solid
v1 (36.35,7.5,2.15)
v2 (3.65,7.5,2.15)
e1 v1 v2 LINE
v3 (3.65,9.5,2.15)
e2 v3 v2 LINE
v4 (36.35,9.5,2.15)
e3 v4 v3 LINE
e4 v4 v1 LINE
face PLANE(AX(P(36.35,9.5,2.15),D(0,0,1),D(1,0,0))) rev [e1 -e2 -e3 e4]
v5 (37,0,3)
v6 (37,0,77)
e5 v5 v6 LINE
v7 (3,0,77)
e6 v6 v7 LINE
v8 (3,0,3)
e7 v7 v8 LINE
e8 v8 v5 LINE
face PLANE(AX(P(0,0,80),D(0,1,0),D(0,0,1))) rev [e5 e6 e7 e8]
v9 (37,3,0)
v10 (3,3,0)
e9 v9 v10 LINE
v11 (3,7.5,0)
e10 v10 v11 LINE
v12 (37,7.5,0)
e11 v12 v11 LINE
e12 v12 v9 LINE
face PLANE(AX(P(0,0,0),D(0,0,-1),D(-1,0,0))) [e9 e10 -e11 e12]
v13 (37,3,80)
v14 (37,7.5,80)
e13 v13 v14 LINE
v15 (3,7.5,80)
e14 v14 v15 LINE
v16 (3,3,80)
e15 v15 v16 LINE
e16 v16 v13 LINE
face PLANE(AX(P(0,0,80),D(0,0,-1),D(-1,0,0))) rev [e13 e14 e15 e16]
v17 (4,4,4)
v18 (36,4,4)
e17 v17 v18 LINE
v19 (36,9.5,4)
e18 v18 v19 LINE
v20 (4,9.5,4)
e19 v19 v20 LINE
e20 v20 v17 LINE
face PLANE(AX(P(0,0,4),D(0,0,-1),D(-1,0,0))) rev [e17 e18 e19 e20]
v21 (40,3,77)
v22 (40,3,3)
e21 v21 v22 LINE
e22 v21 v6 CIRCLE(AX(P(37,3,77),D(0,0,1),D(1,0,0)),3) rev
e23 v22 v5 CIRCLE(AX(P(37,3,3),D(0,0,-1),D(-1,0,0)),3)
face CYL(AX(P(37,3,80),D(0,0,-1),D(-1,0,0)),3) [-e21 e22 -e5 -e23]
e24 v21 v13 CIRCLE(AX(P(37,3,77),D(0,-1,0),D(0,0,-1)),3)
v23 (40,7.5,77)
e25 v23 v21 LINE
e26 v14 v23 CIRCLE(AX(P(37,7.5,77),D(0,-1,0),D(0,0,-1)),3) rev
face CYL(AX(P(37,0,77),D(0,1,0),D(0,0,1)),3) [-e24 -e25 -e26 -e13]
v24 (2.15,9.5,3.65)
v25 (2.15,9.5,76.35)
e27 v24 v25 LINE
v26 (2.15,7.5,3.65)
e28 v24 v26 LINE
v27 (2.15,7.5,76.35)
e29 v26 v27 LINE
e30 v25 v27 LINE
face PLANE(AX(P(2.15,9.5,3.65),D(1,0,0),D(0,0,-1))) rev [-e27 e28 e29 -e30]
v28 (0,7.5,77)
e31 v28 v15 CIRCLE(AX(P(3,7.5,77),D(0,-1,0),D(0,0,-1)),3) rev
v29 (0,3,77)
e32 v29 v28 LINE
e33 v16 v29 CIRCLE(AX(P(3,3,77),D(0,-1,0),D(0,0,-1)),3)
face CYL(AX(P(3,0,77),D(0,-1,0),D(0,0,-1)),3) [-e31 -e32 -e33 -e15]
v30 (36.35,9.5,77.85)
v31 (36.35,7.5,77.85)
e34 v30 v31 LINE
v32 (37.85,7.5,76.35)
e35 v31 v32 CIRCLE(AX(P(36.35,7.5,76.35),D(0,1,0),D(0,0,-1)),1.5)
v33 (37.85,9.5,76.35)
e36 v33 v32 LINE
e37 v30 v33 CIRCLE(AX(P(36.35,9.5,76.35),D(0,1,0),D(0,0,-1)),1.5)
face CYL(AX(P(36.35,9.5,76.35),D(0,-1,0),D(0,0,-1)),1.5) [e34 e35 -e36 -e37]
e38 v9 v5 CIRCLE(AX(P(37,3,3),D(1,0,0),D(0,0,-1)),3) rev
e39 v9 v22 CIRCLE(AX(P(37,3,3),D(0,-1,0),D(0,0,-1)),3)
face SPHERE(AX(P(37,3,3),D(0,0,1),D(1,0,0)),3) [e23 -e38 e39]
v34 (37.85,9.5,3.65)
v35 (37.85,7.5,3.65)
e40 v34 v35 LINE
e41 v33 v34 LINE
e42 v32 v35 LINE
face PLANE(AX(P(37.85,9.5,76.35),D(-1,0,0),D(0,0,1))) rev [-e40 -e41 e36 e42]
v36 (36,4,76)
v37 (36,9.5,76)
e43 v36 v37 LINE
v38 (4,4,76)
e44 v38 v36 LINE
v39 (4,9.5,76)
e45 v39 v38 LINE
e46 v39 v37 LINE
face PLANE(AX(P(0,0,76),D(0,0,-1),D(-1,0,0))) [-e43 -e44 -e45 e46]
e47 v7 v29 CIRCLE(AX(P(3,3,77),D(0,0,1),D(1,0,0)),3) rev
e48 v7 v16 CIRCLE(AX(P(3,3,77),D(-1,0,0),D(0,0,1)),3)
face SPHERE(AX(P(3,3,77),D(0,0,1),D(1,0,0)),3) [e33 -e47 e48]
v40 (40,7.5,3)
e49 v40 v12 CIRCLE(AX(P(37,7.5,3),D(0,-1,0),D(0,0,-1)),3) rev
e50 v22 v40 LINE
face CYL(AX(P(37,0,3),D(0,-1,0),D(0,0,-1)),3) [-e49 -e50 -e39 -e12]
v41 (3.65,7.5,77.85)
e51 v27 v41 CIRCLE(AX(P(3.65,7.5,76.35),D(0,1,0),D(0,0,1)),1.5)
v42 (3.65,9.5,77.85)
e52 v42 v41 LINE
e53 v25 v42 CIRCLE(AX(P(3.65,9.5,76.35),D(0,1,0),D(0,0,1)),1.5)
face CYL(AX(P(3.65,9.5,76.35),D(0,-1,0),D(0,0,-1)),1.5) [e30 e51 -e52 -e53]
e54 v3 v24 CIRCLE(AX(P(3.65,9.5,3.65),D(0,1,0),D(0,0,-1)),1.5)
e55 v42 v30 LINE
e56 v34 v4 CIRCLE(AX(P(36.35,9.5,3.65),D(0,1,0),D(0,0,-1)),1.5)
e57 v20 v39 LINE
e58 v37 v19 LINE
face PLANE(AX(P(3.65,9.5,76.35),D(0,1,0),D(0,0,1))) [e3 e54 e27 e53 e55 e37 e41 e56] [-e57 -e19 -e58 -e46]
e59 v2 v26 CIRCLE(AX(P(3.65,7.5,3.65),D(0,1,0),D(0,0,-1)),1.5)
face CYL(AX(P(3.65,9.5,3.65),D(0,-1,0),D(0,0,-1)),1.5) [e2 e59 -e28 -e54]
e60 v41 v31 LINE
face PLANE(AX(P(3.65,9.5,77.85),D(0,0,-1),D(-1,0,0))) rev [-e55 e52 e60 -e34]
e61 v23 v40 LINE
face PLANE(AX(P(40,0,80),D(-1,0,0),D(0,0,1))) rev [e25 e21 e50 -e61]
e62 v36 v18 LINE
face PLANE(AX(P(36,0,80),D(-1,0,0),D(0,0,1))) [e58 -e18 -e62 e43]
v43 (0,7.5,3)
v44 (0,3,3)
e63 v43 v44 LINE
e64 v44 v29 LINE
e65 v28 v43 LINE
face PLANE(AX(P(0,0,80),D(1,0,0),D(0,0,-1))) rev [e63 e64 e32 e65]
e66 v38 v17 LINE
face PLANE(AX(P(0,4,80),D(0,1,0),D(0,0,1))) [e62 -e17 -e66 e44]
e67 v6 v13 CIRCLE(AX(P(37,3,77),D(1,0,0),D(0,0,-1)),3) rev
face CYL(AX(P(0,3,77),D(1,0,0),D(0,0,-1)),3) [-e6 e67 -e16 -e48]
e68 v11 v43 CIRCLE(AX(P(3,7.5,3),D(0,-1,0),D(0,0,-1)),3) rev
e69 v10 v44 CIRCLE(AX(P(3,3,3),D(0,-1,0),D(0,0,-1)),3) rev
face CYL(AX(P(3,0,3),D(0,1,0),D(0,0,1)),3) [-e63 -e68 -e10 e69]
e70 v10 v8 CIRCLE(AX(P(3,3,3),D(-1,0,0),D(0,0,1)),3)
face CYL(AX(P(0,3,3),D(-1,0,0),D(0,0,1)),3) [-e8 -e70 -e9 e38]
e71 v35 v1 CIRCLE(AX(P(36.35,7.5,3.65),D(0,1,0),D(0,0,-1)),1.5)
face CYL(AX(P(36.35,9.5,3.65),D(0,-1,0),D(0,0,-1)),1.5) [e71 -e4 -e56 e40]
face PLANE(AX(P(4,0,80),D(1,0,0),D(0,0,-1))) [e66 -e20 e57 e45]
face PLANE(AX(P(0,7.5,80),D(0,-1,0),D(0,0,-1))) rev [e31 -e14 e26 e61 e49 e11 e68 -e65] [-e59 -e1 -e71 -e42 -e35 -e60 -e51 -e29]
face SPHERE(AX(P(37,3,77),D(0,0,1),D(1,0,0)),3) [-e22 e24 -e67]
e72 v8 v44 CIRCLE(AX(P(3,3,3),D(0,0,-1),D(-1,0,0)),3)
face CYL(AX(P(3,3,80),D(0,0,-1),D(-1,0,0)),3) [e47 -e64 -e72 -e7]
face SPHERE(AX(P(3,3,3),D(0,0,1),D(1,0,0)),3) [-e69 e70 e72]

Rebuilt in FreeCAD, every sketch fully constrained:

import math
import FreeCAD as App
import Part
import Sketcher

V = App.Vector


def edges_at(feature, points):
    """Names of the edges that pass closest to the given points."""
    edges = feature.Shape.Edges
    near = lambda p: min(range(len(edges)), key=lambda i: edges[i].distToShape(Part.Vertex(*p))[0])
    return sorted({f"Edge{near(p) + 1}" for p in points})


def faces_at(feature, points):
    """Names of the faces that lie closest to the given points."""
    faces = feature.Shape.Faces
    near = lambda p: min(range(len(faces)), key=lambda i: faces[i].distToShape(Part.Vertex(*p))[0])
    return sorted({f"Face{near(p) + 1}" for p in points})


def add_polygon(sketch, points):
    """Adds a closed chain of lines whose ends are joined by coincident constraints."""
    first, n = sketch.GeometryCount, len(points)
    for a, b in zip(points, points[1:] + points[:1]):
        sketch.addGeometry(Part.LineSegment(App.Vector(*a, 0), App.Vector(*b, 0)), False)
    for i in range(n):
        sketch.addConstraint(Sketcher.Constraint("Coincident", first + i, 2, first + (i + 1) % n, 1))

doc = App.newDocument("Part")
body = doc.addObject("PartDesign::Body", "Body")

# Sketch on XY plane
sketch1 = doc.addObject("Sketcher::SketchObject", "Sketch")
body.addObject(sketch1)
sketch1.AttachmentSupport = (doc.XY_Plane, [""])
sketch1.MapMode = "FlatFace"
add_polygon(sketch1, [(0, 8), (0, 0), (40, 0), (40, 8)])  # lines 0-3
sketch1.addConstraint([
    Sketcher.Constraint("Vertical", 0),
    Sketcher.Constraint("Horizontal", 1),
    Sketcher.Constraint("Vertical", 2),
    Sketcher.Constraint("Horizontal", 3),
    Sketcher.Constraint("Coincident", 0, 2, -1, 1),
    Sketcher.Constraint("DistanceX", 1, 1, 1, 2, 40.0),
    Sketcher.Constraint("DistanceY", 0, 2, 0, 1, 7.5),
])
pad1 = doc.addObject("PartDesign::Pad", "Pad")
body.addObject(pad1)
pad1.Profile = sketch1
pad1.Length = 80
doc.recompute()

thickness = doc.addObject("PartDesign::Thickness", "Thickness")
body.addObject(thickness)
thickness.Base = (pad1, faces_at(pad1, [(20, 7.5, 40)]))
thickness.Value = 4
thickness.Reversed = True
thickness.Join = "Intersection"
doc.recompute()

fillet = doc.addObject("PartDesign::Fillet", "Fillet")
body.addObject(fillet)
fillet.Base = (thickness, edges_at(thickness, [
    (40, 3.75, 80),
    (0, 3.75, 80),
    (40, 3.75, 0),
    (20, 0, 0),
    (0, 3.75, 0),
    (40, 0, 40),
    (0, 0, 40),
    (20, 0, 80),
]))
fillet.Radius = 3

# Sketch on XZ plane
sketch2 = doc.addObject("Sketcher::SketchObject", "Sketch001")
body.addObject(sketch2)
sketch2.AttachmentSupport = (doc.XZ_Plane, [""])
sketch2.MapMode = "FlatFace"
sketch2.AttachmentOffset = App.Placement(V(0, 0, -7.5), App.Rotation())
sketch2.addGeometry(Part.LineSegment(V(3.6, 77.8, 0), V(36.4, 77.8, 0)), False)  # 0
sketch2.addGeometry(Part.ArcOfCircle(Part.Circle(V(36.4, 76.4, 0), V(0, 0, 1), 1.5), math.radians(0), math.radians(90)), False)  # 1
sketch2.addGeometry(Part.LineSegment(V(37.9, 76.3, 0), V(37.9, 3.6, 0)), False)  # 2
sketch2.addGeometry(Part.ArcOfCircle(Part.Circle(V(36.4, 3.6, 0), V(0, 0, 1), 1.5), math.radians(-90), math.radians(0)), False)  # 3
sketch2.addGeometry(Part.LineSegment(V(36.4, 2.1, 0), V(3.6, 2.1, 0)), False)  # 4
sketch2.addGeometry(Part.ArcOfCircle(Part.Circle(V(3.6, 3.6, 0), V(0, 0, 1), 1.5), math.radians(180), math.radians(270)), False)  # 5
sketch2.addGeometry(Part.LineSegment(V(2.1, 3.6, 0), V(2.1, 76.3, 0)), False)  # 6
sketch2.addGeometry(Part.ArcOfCircle(Part.Circle(V(3.6, 76.4, 0), V(0, 0, 1), 1.5), math.radians(90), math.radians(180)), False)  # 7
add_polygon(sketch2, [(36, 76), (4, 76), (4, 4), (36, 4)])  # lines 8-11
sketch2.addConstraint([
    Sketcher.Constraint("Tangent", 0, 2, 1, 2),
    Sketcher.Constraint("Tangent", 1, 1, 2, 1),
    Sketcher.Constraint("Tangent", 2, 2, 3, 2),
    Sketcher.Constraint("Tangent", 3, 1, 4, 1),
    Sketcher.Constraint("Tangent", 4, 2, 5, 2),
    Sketcher.Constraint("Tangent", 5, 1, 6, 1),
    Sketcher.Constraint("Tangent", 6, 2, 7, 2),
    Sketcher.Constraint("Tangent", 7, 1, 0, 1),
    Sketcher.Constraint("Horizontal", 0),
    Sketcher.Constraint("Vertical", 2),
    Sketcher.Constraint("Horizontal", 4),
    Sketcher.Constraint("Vertical", 6),
    Sketcher.Constraint("Horizontal", 8),
    Sketcher.Constraint("Vertical", 9),
    Sketcher.Constraint("Horizontal", 10),
    Sketcher.Constraint("Vertical", 11),
    Sketcher.Constraint("Equal", 1, 3),
    Sketcher.Constraint("Equal", 3, 5),
    Sketcher.Constraint("Equal", 5, 7),
    Sketcher.Constraint("Radius", 1, 1.5),
    Sketcher.Constraint("DistanceX", 8, 2, 8, 1, 32.0),
    Sketcher.Constraint("DistanceY", 9, 2, 9, 1, 72.0),
    Sketcher.Constraint("DistanceX", 0, 1, 0, 2, 32.7),
    Sketcher.Constraint("DistanceY", 2, 2, 2, 1, 72.7),
    Sketcher.Constraint("DistanceX", -1, 1, 8, 2, 4.0),
    Sketcher.Constraint("DistanceY", -1, 1, 8, 2, 76.0),
    Sketcher.Constraint("DistanceX", -1, 1, 1, 3, 36.35),
    Sketcher.Constraint("DistanceY", -1, 1, 1, 3, 76.35),
])
pad2 = doc.addObject("PartDesign::Pad", "Pad001")
body.addObject(pad2)
pad2.Profile = sketch2
pad2.Length = 2
pad2.Reversed = True

doc.recompute()
